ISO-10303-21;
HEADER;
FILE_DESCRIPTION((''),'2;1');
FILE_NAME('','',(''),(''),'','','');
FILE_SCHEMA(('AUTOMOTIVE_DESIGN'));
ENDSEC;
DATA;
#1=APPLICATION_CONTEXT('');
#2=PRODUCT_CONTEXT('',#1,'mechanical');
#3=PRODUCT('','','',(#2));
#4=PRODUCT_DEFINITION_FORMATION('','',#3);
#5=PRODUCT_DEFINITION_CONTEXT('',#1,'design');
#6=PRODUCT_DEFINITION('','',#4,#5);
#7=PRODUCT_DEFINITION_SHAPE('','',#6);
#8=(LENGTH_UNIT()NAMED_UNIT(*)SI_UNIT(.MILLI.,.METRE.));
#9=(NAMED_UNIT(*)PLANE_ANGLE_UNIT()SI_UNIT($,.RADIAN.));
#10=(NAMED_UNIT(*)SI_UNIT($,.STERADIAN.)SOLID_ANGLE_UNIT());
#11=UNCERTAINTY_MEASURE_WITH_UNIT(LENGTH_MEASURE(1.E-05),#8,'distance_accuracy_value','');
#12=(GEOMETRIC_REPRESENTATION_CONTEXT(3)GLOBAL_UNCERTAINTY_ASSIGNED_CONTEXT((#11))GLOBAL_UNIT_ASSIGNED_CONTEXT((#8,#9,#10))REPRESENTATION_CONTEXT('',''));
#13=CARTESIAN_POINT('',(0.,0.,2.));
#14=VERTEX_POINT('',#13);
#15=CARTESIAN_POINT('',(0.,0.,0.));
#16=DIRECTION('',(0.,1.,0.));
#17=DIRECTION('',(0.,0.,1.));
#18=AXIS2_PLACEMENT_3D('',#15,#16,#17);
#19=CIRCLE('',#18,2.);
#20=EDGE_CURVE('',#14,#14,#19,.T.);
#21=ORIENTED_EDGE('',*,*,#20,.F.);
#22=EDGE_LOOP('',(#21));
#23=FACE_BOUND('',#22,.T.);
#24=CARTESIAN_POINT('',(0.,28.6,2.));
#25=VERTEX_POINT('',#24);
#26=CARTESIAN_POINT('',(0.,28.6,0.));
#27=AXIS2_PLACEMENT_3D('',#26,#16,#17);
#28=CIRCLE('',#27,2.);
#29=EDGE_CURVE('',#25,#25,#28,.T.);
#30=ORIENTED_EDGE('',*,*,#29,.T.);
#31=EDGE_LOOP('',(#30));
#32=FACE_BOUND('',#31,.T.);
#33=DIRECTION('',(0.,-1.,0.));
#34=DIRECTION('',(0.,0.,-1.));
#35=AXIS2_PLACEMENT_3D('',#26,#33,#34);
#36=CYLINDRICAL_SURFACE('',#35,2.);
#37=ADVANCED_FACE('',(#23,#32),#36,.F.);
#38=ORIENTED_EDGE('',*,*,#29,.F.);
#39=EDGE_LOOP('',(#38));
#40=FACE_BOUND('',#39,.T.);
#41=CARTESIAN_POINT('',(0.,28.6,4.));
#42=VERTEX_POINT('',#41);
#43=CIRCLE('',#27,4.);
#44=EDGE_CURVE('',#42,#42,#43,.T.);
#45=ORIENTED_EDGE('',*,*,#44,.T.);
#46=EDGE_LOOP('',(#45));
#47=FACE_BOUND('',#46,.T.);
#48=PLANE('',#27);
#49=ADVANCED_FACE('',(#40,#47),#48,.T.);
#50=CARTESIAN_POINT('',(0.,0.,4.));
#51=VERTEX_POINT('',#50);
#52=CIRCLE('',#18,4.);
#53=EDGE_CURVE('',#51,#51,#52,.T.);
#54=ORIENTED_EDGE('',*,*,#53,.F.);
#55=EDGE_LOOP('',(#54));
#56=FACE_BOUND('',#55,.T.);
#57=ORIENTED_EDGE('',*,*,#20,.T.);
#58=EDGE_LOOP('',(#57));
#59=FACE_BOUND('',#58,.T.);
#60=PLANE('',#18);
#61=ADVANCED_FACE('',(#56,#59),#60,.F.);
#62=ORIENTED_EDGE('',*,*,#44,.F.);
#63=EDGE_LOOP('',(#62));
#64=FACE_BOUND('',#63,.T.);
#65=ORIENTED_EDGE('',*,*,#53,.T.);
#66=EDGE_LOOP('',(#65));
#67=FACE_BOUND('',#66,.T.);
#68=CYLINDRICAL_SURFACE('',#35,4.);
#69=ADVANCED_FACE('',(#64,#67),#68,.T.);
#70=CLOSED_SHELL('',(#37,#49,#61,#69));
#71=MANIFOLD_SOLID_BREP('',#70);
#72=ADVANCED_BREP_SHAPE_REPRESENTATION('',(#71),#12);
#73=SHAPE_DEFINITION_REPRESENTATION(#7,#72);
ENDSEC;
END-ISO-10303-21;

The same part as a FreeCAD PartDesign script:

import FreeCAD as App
import Part
import Sketcher

doc = App.newDocument("Part")
body = doc.addObject("PartDesign::Body", "Body")

# Sketch on XZ plane
sketch1 = body.newObject("Sketcher::SketchObject", "Sketch")
sketch1.AttachmentSupport = (doc.getObject("XZ_Plane"), [""])
sketch1.MapMode = "FlatFace"
sketch1.addGeometry([
    Part.Circle(App.Vector(0, 0, 0), App.Vector(0, 0, 1), 4),
    Part.Circle(App.Vector(0, 0, 0), App.Vector(0, 0, 1), 2),
], False)
sketch1.addConstraint([
    Sketcher.Constraint("Coincident", 0, 3, -1, 1),
    Sketcher.Constraint("Coincident", 1, 3, -1, 1),
    Sketcher.Constraint("Diameter", 0, 8.0),
    Sketcher.Constraint("Diameter", 1, 4.0),
])
pad1 = body.newObject("PartDesign::Pad", "Pad")
pad1.Profile = sketch1
pad1.Length = 28.6
pad1.Reversed = True

doc.recompute()
